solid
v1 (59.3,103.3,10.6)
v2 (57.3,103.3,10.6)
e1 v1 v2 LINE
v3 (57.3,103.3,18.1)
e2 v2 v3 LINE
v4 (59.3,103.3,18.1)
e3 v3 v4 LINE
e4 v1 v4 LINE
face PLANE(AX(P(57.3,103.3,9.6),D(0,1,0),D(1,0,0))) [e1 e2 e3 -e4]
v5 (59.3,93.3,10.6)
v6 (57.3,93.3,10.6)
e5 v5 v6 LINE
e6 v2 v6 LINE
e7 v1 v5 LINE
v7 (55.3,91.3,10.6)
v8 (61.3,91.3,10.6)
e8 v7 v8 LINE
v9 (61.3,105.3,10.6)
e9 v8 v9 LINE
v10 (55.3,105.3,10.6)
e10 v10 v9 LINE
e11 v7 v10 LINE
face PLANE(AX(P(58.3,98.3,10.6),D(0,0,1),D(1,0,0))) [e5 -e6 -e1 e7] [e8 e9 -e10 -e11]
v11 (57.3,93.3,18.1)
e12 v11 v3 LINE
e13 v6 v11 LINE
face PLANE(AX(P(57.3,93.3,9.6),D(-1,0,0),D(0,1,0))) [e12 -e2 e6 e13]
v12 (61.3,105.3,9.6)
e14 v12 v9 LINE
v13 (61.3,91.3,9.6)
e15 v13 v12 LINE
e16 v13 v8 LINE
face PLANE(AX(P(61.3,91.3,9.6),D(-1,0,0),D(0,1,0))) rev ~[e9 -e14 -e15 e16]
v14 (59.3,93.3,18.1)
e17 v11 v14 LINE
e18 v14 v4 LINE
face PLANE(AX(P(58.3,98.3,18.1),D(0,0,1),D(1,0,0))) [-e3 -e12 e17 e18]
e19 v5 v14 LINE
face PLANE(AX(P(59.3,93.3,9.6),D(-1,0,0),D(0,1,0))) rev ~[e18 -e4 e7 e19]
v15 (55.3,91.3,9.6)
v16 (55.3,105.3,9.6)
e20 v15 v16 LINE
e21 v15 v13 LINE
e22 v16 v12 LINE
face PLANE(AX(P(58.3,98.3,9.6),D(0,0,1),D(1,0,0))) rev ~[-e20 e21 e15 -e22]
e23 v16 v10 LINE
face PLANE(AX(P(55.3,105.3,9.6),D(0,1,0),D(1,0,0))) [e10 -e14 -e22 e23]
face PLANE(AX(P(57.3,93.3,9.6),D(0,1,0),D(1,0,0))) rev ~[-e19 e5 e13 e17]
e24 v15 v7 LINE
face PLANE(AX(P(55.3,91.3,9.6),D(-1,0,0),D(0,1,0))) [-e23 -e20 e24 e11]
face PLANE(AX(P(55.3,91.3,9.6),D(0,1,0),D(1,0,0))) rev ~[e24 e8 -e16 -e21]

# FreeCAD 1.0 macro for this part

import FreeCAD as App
import Part
import Sketcher

V = App.Vector
Q = App.Units.Quantity


def add_polygon(sketch, points):
    """Adds a closed chain of lines whose ends are joined by coincident constraints."""
    first, n = sketch.GeometryCount, len(points)
    for a, b in zip(points, points[1:] + points[:1]):
        sketch.addGeometry(Part.LineSegment(App.Vector(*a, 0), App.Vector(*b, 0)), False)
    for i in range(n):
        sketch.addConstraint(Sketcher.Constraint("Coincident", first + i, 2, first + (i + 1) % n, 1))

doc = App.newDocument("Part")
body = doc.addObject("PartDesign::Body", "Body")

sketch1 = body.newObject("Sketcher::SketchObject", "Sketch")
sketch1.AttachmentSupport = (doc.getObject("XY_Plane"), [""])
sketch1.MapMode = "FlatFace"
sketch1.AttachmentOffset = App.Placement(V(0, 0, 9.6), App.Rotation())
add_polygon(sketch1, [(57.3, 103.3), (57.3, 93.3), (59.3, 93.3), (59.3, 103.3)])
sketch1.addConstraint(Sketcher.Constraint("Vertical", 0))
sketch1.addConstraint(Sketcher.Constraint("Horizontal", 1))
sketch1.addConstraint(Sketcher.Constraint("Vertical", 2))
sketch1.addConstraint(Sketcher.Constraint("Horizontal", 3))
sketch1.addConstraint(Sketcher.Constraint("DistanceX", 1, 1, 1, 2, Q("2 mm")))
sketch1.addConstraint(Sketcher.Constraint("DistanceY", 0, 2, 0, 1, Q("10 mm")))
sketch1.addConstraint(Sketcher.Constraint("DistanceX", -1, 1, 0, 2, Q("57.3 mm")))
sketch1.addConstraint(Sketcher.Constraint("DistanceY", -1, 1, 0, 2, Q("93.3 mm")))
pad1 = body.newObject("PartDesign::Pad", "Pad")
pad1.Profile = sketch1
pad1.Length = 8.5
body2 = doc.addObject("PartDesign::Body", "Body001")

sketch2 = body2.newObject("Sketcher::SketchObject", "Sketch001")
sketch2.AttachmentSupport = (doc.getObject("XY_Plane001"), [""])
sketch2.MapMode = "FlatFace"
sketch2.AttachmentOffset = App.Placement(V(0, 0, 9.6), App.Rotation())
add_polygon(sketch2, [(55, 105), (55, 91), (61, 91), (61, 105)])
sketch2.addConstraint(Sketcher.Constraint("Vertical", 0))
sketch2.addConstraint(Sketcher.Constraint("Horizontal", 1))
sketch2.addConstraint(Sketcher.Constraint("Vertical", 2))
sketch2.addConstraint(Sketcher.Constraint("Horizontal", 3))
sketch2.addConstraint(Sketcher.Constraint("DistanceX", 1, 1, 1, 2, Q("6 mm")))
sketch2.addConstraint(Sketcher.Constraint("DistanceY", 0, 2, 0, 1, Q("14 mm")))
sketch2.addConstraint(Sketcher.Constraint("DistanceX", -1, 1, 0, 2, Q("55.3 mm")))
sketch2.addConstraint(Sketcher.Constraint("DistanceY", -1, 1, 0, 2, Q("91.3 mm")))
pad2 = body2.newObject("PartDesign::Pad", "Pad001")
pad2.Profile = sketch2
pad2.Length = 1
doc.recompute()

boolean = body2.newObject("PartDesign::Boolean", "Boolean")
boolean.Type = "Fuse"
boolean.addObjects([body])

doc.recompute()
